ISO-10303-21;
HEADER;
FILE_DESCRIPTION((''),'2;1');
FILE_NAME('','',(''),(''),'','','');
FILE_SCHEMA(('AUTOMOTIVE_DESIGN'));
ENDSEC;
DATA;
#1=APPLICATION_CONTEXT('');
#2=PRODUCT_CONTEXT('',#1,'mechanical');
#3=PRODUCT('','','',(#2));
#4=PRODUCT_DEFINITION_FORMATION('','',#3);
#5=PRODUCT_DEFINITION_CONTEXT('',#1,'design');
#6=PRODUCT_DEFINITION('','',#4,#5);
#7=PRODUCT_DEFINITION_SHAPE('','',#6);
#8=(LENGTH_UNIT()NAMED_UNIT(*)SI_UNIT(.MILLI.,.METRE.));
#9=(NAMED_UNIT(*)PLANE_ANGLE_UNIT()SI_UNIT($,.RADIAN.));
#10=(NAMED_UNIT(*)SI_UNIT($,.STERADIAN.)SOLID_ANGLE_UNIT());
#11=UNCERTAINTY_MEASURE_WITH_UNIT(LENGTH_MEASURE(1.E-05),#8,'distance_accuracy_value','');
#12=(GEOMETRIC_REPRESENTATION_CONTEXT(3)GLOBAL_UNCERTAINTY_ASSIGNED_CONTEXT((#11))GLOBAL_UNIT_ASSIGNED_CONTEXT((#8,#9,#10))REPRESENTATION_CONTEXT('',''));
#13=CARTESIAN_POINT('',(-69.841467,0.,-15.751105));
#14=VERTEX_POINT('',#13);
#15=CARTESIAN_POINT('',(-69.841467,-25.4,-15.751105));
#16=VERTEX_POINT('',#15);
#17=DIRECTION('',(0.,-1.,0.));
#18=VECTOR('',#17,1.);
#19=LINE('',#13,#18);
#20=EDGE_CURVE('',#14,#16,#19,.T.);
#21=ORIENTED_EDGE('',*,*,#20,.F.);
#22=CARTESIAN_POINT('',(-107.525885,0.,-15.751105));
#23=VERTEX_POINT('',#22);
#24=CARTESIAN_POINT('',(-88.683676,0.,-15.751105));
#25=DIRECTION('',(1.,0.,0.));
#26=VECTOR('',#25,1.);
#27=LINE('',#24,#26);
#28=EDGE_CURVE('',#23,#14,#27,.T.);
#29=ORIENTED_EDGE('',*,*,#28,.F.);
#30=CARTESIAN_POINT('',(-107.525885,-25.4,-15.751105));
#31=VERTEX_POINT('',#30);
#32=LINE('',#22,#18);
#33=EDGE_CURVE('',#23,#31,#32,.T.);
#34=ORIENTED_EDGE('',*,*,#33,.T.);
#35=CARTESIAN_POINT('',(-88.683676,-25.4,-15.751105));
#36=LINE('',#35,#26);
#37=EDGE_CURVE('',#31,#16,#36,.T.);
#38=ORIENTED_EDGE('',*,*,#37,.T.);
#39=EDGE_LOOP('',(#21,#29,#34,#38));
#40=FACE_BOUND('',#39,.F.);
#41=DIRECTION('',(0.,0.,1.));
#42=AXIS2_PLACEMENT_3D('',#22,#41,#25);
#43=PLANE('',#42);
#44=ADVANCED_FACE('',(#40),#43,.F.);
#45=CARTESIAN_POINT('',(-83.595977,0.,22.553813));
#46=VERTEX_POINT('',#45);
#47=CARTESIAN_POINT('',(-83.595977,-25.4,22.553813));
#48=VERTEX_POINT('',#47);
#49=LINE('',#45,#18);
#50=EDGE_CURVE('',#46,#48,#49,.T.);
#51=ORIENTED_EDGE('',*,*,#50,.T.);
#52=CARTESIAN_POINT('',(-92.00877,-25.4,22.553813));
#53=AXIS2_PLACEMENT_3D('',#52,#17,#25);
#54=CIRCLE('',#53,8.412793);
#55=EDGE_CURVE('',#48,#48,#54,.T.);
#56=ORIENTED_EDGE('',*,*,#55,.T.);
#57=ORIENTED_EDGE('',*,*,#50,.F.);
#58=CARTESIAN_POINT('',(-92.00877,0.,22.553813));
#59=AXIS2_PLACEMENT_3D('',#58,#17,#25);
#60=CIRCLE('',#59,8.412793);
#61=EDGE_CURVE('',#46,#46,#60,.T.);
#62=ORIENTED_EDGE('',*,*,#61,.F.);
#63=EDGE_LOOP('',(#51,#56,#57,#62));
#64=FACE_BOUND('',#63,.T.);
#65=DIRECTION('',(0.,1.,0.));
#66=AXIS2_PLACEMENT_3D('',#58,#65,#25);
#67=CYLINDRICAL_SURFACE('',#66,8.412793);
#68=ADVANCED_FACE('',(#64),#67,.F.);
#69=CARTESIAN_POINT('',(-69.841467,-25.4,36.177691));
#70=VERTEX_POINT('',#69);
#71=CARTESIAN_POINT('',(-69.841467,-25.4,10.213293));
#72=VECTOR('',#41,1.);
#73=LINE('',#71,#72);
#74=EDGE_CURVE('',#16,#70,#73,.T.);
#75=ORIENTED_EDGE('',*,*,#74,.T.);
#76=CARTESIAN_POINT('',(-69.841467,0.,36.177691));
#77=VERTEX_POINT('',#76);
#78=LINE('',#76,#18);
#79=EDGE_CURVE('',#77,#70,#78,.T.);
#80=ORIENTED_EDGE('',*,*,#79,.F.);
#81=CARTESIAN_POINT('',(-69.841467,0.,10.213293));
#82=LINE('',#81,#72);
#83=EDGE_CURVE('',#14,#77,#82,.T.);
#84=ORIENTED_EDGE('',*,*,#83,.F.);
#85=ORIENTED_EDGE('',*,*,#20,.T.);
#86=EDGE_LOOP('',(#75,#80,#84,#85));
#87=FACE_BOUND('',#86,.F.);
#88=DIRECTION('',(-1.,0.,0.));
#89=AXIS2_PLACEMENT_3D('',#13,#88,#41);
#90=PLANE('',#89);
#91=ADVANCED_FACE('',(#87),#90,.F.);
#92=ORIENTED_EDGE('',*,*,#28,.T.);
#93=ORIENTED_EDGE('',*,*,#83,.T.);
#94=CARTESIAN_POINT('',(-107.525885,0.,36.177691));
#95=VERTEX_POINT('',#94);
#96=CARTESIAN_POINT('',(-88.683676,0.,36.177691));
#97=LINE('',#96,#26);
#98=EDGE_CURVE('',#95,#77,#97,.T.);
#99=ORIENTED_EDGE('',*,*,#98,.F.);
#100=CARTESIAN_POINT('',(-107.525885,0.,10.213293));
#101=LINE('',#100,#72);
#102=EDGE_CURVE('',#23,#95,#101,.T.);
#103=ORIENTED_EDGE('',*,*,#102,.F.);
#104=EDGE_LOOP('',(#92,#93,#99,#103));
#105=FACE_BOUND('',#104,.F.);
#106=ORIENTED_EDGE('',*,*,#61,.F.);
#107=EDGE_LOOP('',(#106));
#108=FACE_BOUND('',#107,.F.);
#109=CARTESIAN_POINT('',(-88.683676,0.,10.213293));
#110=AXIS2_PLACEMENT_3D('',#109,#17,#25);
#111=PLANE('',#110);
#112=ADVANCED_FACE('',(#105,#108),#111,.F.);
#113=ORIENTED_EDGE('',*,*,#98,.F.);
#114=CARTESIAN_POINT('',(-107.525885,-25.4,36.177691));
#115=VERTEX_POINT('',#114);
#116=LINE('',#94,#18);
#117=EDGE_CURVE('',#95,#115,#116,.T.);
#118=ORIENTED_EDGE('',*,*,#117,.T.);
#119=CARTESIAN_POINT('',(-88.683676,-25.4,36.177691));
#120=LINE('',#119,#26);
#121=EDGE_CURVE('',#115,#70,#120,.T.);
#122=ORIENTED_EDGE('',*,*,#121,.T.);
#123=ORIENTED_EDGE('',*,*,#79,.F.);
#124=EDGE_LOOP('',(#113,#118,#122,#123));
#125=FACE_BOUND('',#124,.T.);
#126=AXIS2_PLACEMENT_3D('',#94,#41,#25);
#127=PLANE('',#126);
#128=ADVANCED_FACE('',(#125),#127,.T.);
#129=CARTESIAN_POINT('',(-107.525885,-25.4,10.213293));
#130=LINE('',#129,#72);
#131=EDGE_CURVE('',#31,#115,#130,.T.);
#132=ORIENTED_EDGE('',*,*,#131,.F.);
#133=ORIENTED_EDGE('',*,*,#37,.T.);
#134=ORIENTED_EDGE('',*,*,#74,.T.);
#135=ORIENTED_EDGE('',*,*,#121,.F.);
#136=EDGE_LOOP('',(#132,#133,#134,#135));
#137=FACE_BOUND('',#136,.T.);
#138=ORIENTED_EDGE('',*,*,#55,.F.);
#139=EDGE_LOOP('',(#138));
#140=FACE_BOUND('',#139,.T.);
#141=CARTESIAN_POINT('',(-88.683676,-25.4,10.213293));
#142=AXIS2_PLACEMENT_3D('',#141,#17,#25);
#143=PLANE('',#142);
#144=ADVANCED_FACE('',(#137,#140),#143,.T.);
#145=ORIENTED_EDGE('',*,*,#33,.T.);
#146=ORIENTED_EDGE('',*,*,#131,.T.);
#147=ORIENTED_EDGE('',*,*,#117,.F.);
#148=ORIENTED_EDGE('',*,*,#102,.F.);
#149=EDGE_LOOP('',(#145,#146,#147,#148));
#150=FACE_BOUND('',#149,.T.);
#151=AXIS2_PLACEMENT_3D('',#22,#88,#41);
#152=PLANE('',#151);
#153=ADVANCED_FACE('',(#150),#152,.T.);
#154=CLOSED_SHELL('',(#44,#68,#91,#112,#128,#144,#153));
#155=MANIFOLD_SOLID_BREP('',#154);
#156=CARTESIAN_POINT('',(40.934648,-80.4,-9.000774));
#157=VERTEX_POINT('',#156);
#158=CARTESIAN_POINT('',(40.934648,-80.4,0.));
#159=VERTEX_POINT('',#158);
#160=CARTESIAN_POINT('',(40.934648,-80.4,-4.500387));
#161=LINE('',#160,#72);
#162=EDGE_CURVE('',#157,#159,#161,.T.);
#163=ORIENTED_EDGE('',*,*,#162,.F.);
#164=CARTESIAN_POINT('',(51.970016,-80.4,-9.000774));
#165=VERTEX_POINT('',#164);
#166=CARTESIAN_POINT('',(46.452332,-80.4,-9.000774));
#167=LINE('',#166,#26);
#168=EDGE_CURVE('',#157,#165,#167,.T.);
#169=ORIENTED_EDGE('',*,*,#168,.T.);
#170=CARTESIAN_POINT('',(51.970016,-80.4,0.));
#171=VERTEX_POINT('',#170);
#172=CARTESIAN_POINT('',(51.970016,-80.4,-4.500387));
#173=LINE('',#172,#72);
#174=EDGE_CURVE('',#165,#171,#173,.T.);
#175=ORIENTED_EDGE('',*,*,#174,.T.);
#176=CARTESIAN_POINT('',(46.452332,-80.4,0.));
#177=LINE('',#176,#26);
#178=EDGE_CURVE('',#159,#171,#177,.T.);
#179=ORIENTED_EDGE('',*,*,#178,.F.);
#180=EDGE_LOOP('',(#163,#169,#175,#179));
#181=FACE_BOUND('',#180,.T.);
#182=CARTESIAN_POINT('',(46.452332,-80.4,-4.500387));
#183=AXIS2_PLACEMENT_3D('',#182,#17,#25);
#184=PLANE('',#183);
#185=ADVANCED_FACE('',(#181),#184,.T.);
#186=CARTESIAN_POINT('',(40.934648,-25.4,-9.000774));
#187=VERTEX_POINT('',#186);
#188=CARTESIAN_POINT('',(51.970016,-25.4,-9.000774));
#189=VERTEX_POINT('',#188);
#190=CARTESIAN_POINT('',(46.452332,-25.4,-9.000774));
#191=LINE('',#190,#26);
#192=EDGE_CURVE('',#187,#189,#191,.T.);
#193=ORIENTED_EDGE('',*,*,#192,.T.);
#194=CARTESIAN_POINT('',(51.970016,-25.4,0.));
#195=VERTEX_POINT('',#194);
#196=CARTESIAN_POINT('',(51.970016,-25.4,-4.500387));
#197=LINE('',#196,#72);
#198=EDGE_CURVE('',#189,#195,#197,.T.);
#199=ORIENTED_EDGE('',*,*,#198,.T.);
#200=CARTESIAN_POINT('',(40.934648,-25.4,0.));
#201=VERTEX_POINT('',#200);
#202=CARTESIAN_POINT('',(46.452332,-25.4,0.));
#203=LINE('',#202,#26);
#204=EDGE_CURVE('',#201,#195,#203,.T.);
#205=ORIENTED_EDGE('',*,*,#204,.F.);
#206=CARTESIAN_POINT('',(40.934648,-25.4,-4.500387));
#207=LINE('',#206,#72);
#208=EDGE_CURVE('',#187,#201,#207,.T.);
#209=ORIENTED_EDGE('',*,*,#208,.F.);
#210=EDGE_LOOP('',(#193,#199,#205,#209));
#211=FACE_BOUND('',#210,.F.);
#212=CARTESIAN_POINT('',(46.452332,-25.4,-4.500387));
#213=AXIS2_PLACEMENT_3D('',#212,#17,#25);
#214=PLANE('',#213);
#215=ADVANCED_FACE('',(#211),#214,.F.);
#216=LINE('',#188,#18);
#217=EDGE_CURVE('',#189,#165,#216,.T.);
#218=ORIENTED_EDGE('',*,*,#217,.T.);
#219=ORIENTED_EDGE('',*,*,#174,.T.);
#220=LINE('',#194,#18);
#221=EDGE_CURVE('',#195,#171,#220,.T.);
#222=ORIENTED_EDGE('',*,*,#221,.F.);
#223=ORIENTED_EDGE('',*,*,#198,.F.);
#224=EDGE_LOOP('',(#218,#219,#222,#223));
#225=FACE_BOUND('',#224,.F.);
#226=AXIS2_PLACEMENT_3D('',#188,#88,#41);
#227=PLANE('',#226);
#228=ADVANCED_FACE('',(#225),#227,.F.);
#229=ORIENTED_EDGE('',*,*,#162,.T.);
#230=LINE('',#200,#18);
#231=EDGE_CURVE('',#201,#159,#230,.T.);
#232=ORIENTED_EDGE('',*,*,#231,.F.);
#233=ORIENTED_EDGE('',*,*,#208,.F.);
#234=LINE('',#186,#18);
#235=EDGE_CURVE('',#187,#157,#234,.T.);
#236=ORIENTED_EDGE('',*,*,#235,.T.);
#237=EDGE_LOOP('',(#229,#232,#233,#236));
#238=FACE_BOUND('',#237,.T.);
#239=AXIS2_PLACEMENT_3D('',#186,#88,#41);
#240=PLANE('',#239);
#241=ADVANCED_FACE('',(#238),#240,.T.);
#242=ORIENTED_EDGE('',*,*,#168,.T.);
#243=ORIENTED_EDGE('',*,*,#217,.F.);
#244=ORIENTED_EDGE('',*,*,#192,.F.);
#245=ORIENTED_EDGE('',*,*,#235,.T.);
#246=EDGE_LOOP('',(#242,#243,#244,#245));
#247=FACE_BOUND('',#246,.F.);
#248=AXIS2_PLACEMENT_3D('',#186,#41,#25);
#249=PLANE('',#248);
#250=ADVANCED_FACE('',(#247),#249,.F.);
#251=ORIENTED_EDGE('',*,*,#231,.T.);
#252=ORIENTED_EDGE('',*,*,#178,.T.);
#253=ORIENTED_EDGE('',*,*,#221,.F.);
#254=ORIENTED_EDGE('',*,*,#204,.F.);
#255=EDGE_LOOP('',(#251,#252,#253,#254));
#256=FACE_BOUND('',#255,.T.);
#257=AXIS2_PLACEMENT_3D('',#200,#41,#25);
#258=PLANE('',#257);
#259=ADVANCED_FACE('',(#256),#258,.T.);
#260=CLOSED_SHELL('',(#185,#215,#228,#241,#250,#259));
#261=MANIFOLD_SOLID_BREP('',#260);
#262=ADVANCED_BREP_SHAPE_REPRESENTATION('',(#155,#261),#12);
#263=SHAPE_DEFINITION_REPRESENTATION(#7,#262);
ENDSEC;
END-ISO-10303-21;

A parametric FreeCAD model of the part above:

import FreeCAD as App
import Part
import Sketcher
Q = App.Units.Quantity


def add_polygon(sketch, points):
    """Adds a closed chain of lines whose ends are joined by coincident constraints."""
    first, n = sketch.GeometryCount, len(points)
    for a, b in zip(points, points[1:] + points[:1]):
        sketch.addGeometry(Part.LineSegment(App.Vector(*a, 0), App.Vector(*b, 0)), False)
    for i in range(n):
        sketch.addConstraint(Sketcher.Constraint("Coincident", first + i, 2, first + (i + 1) % n, 1))

doc = App.newDocument("Part")
body = doc.addObject("PartDesign::Body", "Body")

# Sketch on XZ plane
sketch1 = body.newObject("Sketcher::SketchObject", "Sketch")
sketch1.AttachmentSupport = (doc.getObject("XZ_Plane"), [""])
sketch1.MapMode = "FlatFace"
add_polygon(sketch1, [(-108, 36), (-108, -16), (-70, -16), (-70, 36)])  # lines 0-3
sketch1.addGeometry(Part.Circle(App.Vector(-92, 23, 0), App.Vector(0, 0, 1), 8), False)  # 4
sketch1.addConstraint([
    Sketcher.Constraint("Vertical", 0),
    Sketcher.Constraint("Horizontal", 1),
    Sketcher.Constraint("Vertical", 2),
    Sketcher.Constraint("Horizontal", 3),
    Sketcher.Constraint("Diameter", 4, Q("16.825586 mm")),
    Sketcher.Constraint("DistanceX", 1, 1, 1, 2, Q("37.684418 mm")),
    Sketcher.Constraint("DistanceY", 0, 2, 0, 1, Q("51.928796 mm")),
    Sketcher.Constraint("DistanceX", 4, 3, -1, 1, Q("92.00877 mm")),
    Sketcher.Constraint("DistanceY", -1, 1, 2, 2, Q("36.177691 mm")),
    Sketcher.Constraint("DistanceY", 4, 3, 2, 2, Q("13.623878 mm")),
    Sketcher.Constraint("DistanceX", 0, 2, -1, 1, Q("107.525885 mm")),
])
pad1 = body.newObject("PartDesign::Pad", "Pad")
pad1.Profile = sketch1
pad1.Length = 25.4
body2 = doc.addObject("PartDesign::Body", "Body001")

# Sketch on XZ plane
sketch2 = body2.newObject("Sketcher::SketchObject", "Sketch001")
sketch2.AttachmentSupport = (doc.getObject("XZ_Plane001"), [""])
sketch2.MapMode = "FlatFace"
sketch2.AttachmentOffset = App.Placement(App.Vector(0, 0, 25.4), App.Rotation())
add_polygon(sketch2, [(41, 0), (41, -9), (52, -9), (52, 0)])  # lines 0-3
sketch2.addConstraint([
    Sketcher.Constraint("Vertical", 0),
    Sketcher.Constraint("Horizontal", 1),
    Sketcher.Constraint("Vertical", 2),
    Sketcher.Constraint("Horizontal", 3),
    Sketcher.Constraint("PointOnObject", 2, 2, -1),
    Sketcher.Constraint("DistanceX", 1, 1, 1, 2, Q("11.035368 mm")),
    Sketcher.Constraint("DistanceY", 0, 2, 0, 1, Q("9.000774 mm")),
    Sketcher.Constraint("DistanceX", -1, 1, 0, 2, Q("40.934648 mm")),
])
pad2 = body2.newObject("PartDesign::Pad", "Pad001")
pad2.Profile = sketch2
pad2.Length = 55

doc.recompute()
